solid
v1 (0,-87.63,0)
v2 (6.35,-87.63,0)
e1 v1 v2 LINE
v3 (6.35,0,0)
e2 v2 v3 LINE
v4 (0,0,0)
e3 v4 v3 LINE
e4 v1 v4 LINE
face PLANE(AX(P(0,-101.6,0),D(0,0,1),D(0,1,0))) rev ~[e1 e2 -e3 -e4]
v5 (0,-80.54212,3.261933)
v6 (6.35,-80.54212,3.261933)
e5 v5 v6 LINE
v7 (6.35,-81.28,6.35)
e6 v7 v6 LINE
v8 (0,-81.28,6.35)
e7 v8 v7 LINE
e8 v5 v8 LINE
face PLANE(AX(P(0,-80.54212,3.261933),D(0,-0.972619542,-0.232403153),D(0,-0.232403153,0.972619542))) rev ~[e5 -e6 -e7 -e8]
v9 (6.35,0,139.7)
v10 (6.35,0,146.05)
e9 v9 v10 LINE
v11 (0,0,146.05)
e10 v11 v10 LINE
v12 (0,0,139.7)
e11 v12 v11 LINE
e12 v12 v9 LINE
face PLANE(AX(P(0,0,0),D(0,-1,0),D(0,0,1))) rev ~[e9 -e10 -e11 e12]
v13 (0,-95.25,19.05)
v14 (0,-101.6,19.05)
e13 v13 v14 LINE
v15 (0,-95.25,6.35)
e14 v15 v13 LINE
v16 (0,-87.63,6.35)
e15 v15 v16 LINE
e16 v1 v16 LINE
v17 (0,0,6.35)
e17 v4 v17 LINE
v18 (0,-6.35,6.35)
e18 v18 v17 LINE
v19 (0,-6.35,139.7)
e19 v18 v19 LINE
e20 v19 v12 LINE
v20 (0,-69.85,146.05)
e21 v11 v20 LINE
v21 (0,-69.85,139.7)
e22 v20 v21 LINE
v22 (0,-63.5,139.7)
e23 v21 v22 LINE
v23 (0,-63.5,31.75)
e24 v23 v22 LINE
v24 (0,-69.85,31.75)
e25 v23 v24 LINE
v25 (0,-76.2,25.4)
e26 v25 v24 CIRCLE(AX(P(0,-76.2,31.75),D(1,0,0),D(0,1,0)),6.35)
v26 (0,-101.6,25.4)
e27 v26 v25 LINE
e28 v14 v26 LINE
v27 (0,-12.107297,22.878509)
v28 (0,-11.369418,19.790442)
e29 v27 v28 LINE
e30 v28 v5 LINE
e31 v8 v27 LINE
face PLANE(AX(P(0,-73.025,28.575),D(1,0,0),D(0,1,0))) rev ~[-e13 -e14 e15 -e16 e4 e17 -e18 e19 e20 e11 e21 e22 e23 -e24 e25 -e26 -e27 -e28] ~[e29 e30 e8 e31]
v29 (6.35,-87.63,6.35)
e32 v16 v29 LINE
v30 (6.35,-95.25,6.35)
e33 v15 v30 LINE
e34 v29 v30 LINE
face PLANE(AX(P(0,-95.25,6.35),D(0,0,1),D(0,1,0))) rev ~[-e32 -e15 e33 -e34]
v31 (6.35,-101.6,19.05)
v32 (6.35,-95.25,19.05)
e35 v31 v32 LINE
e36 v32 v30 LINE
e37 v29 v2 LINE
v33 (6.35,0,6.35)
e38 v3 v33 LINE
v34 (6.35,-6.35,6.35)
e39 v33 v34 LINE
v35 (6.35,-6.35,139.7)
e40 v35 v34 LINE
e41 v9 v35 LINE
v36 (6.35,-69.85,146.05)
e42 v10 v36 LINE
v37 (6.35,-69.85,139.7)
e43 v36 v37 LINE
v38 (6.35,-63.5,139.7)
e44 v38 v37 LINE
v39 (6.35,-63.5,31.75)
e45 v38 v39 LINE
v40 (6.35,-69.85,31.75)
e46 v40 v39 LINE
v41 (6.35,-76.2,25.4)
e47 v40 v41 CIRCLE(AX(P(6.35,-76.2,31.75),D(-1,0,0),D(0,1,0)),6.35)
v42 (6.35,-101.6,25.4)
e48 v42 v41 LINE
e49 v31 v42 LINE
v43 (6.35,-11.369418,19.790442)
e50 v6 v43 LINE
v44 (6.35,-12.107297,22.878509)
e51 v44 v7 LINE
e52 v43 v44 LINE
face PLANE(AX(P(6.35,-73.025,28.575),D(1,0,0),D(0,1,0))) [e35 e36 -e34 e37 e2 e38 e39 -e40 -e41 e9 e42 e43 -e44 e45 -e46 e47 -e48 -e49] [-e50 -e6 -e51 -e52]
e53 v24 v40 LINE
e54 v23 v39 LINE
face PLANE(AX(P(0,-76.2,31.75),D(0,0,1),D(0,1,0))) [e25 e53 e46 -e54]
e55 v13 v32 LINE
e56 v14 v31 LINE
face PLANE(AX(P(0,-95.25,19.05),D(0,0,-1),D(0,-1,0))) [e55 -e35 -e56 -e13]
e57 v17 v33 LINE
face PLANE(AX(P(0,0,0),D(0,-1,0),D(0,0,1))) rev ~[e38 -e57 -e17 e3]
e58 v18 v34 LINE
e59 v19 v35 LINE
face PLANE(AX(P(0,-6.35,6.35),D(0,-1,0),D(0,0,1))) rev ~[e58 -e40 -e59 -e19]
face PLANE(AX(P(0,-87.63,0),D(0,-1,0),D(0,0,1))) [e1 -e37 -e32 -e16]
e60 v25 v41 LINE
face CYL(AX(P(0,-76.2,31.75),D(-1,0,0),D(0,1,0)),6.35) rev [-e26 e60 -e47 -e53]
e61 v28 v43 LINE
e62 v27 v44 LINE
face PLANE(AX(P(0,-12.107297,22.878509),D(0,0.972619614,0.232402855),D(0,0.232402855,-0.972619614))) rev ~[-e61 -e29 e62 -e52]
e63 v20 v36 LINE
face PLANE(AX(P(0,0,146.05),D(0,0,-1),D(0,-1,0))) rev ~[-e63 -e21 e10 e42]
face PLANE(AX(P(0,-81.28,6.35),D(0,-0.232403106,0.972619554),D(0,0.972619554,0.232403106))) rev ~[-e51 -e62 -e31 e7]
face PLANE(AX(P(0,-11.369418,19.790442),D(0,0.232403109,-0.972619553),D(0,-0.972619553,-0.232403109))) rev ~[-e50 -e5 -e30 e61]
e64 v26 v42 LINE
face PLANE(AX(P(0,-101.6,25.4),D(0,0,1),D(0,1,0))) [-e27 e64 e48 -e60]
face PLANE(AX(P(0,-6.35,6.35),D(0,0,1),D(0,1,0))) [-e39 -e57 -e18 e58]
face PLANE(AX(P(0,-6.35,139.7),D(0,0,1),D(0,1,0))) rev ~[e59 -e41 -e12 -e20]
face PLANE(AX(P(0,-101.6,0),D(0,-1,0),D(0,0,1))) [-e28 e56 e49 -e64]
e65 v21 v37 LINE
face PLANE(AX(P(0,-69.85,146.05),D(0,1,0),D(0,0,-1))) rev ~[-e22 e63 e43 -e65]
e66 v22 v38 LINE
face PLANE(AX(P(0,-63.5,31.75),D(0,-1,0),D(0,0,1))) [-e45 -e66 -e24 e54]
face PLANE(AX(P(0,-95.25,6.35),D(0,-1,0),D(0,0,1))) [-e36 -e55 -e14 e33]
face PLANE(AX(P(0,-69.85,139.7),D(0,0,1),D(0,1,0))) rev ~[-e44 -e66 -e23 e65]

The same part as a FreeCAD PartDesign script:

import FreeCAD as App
import Part
import Sketcher
from FreeCAD import Vector
Q = App.Units.Quantity


def add_polygon(sketch, points):
    """Adds a closed chain of lines whose ends are joined by coincident constraints."""
    first, n = sketch.GeometryCount, len(points)
    for a, b in zip(points, points[1:] + points[:1]):
        sketch.addGeometry(Part.LineSegment(App.Vector(*a, 0), App.Vector(*b, 0)), False)
    for i in range(n):
        sketch.addConstraint(Sketcher.Constraint("Coincident", first + i, 2, first + (i + 1) % n, 1))

doc = App.newDocument("Part")
body = doc.addObject("PartDesign::Body", "Body")

# Sketch on YZ plane
sketch1 = body.newObject("Sketcher::SketchObject", "Sketch")
sketch1.AttachmentSupport = (doc.getObject("YZ_Plane"), [""])
sketch1.MapMode = "FlatFace"
add_polygon(sketch1, [(0, 0), (0, 146.05), (-69.85, 146.05), (-69.85, 25.4), (-101.6, 25.4), (-101.6, 0)])  # lines 0-5
sketch1.addConstraint([
    Sketcher.Constraint("Vertical", 0),
    Sketcher.Constraint("Horizontal", 1),
    Sketcher.Constraint("Vertical", 2),
    Sketcher.Constraint("Horizontal", 3),
    Sketcher.Constraint("Vertical", 4),
    Sketcher.Constraint("Horizontal", 5),
    Sketcher.Constraint("Coincident", 5, 2, -1, 1),
    Sketcher.Constraint("DistanceX", 5, 1, 5, 2, Q("4 in")),
    Sketcher.Constraint("DistanceY", 4, 2, 4, 1, Q("1 in")),
    Sketcher.Constraint("DistanceX", 1, 2, 1, 1, Q("2.75 in")),
    Sketcher.Constraint("DistanceY", 0, 1, 0, 2, Q("5.75 in")),
])
pad1 = body.newObject("PartDesign::Pad", "Pad")
pad1.Profile = sketch1
pad1.Length = Q("0.25 in")

# Sketch on YZ plane
sketch2 = body.newObject("Sketcher::SketchObject", "Sketch001")
sketch2.AttachmentSupport = (doc.getObject("YZ_Plane"), [""])
sketch2.MapMode = "FlatFace"
add_polygon(sketch2, [(-6.35, 139.7), (-6.35, 6.35), (0, 6.35), (0, 139.7)])  # lines 0-3
sketch2.addConstraint([
    Sketcher.Constraint("Vertical", 0),
    Sketcher.Constraint("Horizontal", 1),
    Sketcher.Constraint("Vertical", 2),
    Sketcher.Constraint("Horizontal", 3),
    Sketcher.Constraint("PointOnObject", 1, 2, -2),
    Sketcher.Constraint("DistanceX", 1, 1, 1, 2, Q("0.25 in")),
    Sketcher.Constraint("DistanceY", 0, 2, 0, 1, Q("5.25 in")),
    Sketcher.Constraint("DistanceY", -1, 1, 2, 2, Q("5.5 in")),
])
pocket1 = body.newObject("PartDesign::Pocket", "Pocket")
pocket1.Profile = sketch2
pocket1.Length = Q("0.49 in")
pocket1.Reversed = True

# Sketch on YZ plane
sketch3 = body.newObject("Sketcher::SketchObject", "Sketch002")
sketch3.AttachmentSupport = (doc.getObject("YZ_Plane"), [""])
sketch3.MapMode = "FlatFace"
add_polygon(sketch3, [(-69.85, 139.7), (-69.85, 31.75), (-63.5, 31.75), (-63.5, 139.7)])  # lines 0-3
sketch3.addConstraint([
    Sketcher.Constraint("Vertical", 0),
    Sketcher.Constraint("Horizontal", 1),
    Sketcher.Constraint("Vertical", 2),
    Sketcher.Constraint("Horizontal", 3),
    Sketcher.Constraint("DistanceX", 1, 1, 1, 2, Q("0.25 in")),
    Sketcher.Constraint("DistanceY", 0, 2, 0, 1, Q("4.25 in")),
    Sketcher.Constraint("DistanceX", 1, 2, -1, 1, Q("2.5 in")),
    Sketcher.Constraint("DistanceY", -1, 1, 2, 2, Q("5.5 in")),
])
pocket2 = body.newObject("PartDesign::Pocket", "Pocket001")
pocket2.Profile = sketch3
pocket2.Length = Q("0.39 in")
pocket2.Reversed = True

# Sketch on YZ plane
sketch4 = body.newObject("Sketcher::SketchObject", "Sketch003")
sketch4.AttachmentSupport = (doc.getObject("YZ_Plane"), [""])
sketch4.MapMode = "FlatFace"
add_polygon(sketch4, [(-95.25, 19.05), (-101.6, 19.05), (-101.6, 0), (-87.63, 0), (-87.63, 6.35), (-95.25, 6.35)])  # lines 0-5
sketch4.addConstraint([
    Sketcher.Constraint("Horizontal", 0),
    Sketcher.Constraint("Vertical", 1),
    Sketcher.Constraint("Horizontal", 2),
    Sketcher.Constraint("Vertical", 3),
    Sketcher.Constraint("Horizontal", 4),
    Sketcher.Constraint("Vertical", 5),
    Sketcher.Constraint("PointOnObject", 1, 2, -1),
    Sketcher.Constraint("Equal", 0, 3),
    Sketcher.Constraint("DistanceX", 4, 2, 4, 1, Q("0.3 in")),
    Sketcher.Constraint("DistanceY", 5, 1, 5, 2, Q("0.5 in")),
    Sketcher.Constraint("DistanceX", 0, 2, -1, 1, Q("4 in")),
    Sketcher.Constraint("DistanceX", 0, 2, 0, 1, Q("0.25 in")),
])
pocket3 = body.newObject("PartDesign::Pocket", "Pocket002")
pocket3.Profile = sketch4
pocket3.Length = Q("0.42 in")
pocket3.Reversed = True

# Sketch on YZ plane
sketch5 = body.newObject("Sketcher::SketchObject", "Sketch004")
sketch5.AttachmentSupport = (doc.getObject("YZ_Plane"), [""])
sketch5.MapMode = "FlatFace"
add_polygon(sketch5, [(-76.2, 31.75), (-76.2, 25.4), (-69.85, 25.4), (-69.85, 31.75)])  # lines 0-3
sketch5.addConstraint([
    Sketcher.Constraint("Vertical", 0),
    Sketcher.Constraint("Horizontal", 1),
    Sketcher.Constraint("Vertical", 2),
    Sketcher.Constraint("Horizontal", 3),
    Sketcher.Constraint("Equal", 3, 0),
    Sketcher.Constraint("DistanceX", 0, 2, -1, 1, Q("3 in")),
    Sketcher.Constraint("DistanceY", -1, 1, 0, 2, Q("1 in")),
    Sketcher.Constraint("DistanceX", 1, 1, 1, 2, Q("0.25 in")),
])
pad2 = body.newObject("PartDesign::Pad", "Pad001")
pad2.Profile = sketch5
pad2.Length = Q("0.25 in")

# Sketch on YZ plane
sketch6 = body.newObject("Sketcher::SketchObject", "Sketch005")
sketch6.AttachmentSupport = (doc.getObject("YZ_Plane"), [""])
sketch6.MapMode = "FlatFace"
sketch6.addGeometry(Part.Circle(Vector(-76.2, 31.75, 0), Vector(0, 0, 1), 6.35), False)
sketch6.addConstraint([
    Sketcher.Constraint("Diameter", 0, Q("0.5 in")),
    Sketcher.Constraint("DistanceX", 0, 3, -1, 1, Q("3 in")),
    Sketcher.Constraint("DistanceY", -1, 1, 0, 3, Q("1.25 in")),
])
pocket4 = body.newObject("PartDesign::Pocket", "Pocket003")
pocket4.Profile = sketch6
pocket4.Length = Q("0.352 in")
pocket4.Reversed = True

# Sketch on YZ plane
sketch7 = body.newObject("Sketcher::SketchObject", "Sketch006")
sketch7.AttachmentSupport = (doc.getObject("YZ_Plane"), [""])
sketch7.MapMode = "FlatFace"
add_polygon(sketch7, [(-80.54212, 3.261933), (-81.28, 6.35), (-12.107297, 22.878509), (-11.369418, 19.790442)])  # lines 0-3
sketch7.addConstraint([
    Sketcher.Constraint("Perpendicular", 0, 1),
    Sketcher.Constraint("Perpendicular", 1, 2),
    Sketcher.Constraint("Perpendicular", 2, 3),
    Sketcher.Constraint("Distance", 1, Q("2.8 in")),
    Sketcher.Constraint("DistanceX", 0, 2, -1, 1, Q("3.2 in")),
    Sketcher.Constraint("DistanceY", -1, 1, 0, 2, Q("0.25 in")),
    Sketcher.Constraint("Distance", 0, Q("0.125 in")),
    Sketcher.Constraint("DistanceX", 3, 2, 2, 2, Q("69.172702 mm")),
])
pocket5 = body.newObject("PartDesign::Pocket", "Pocket004")
pocket5.Profile = sketch7
pocket5.Type = "ThroughAll"
pocket5.Reversed = True

doc.recompute()
